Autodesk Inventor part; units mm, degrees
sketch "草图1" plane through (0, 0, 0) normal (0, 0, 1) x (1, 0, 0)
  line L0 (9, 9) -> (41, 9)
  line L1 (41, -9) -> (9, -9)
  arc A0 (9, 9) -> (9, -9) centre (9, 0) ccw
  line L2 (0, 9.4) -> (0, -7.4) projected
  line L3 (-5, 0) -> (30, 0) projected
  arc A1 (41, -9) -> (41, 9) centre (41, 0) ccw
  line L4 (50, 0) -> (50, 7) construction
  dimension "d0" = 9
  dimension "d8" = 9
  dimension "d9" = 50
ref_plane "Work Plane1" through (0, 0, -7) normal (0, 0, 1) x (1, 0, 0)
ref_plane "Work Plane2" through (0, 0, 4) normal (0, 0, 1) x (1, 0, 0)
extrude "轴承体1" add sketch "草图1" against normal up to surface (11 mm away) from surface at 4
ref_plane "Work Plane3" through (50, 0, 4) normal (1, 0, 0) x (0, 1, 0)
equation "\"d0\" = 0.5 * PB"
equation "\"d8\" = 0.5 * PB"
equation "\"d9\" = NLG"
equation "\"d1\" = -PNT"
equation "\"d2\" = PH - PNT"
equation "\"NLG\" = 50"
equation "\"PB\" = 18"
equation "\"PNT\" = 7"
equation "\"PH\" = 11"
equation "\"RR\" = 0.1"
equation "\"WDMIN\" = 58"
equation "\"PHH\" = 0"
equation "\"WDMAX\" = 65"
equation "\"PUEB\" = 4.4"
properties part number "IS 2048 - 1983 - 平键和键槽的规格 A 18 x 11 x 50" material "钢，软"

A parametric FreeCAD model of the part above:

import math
import FreeCAD as App
import Part
import Sketcher

doc = App.newDocument("Part")
body = doc.addObject("PartDesign::Body", "Body")

# Sketch on XY plane
sketch1 = body.newObject("Sketcher::SketchObject", "Sketch")
sketch1.AttachmentSupport = (doc.getObject("XY_Plane"), [""])
sketch1.MapMode = "FlatFace"
sketch1.AttachmentOffset = App.Placement(App.Vector(0, 0, 4), App.Rotation())
sketch1.addGeometry([
    Part.LineSegment(App.Vector(41, 9, 0), App.Vector(9, 9, 0)),
    Part.ArcOfCircle(Part.Circle(App.Vector(9, 0, 0), App.Vector(0, 0, 1), 9), math.radians(90), math.radians(270)),
    Part.LineSegment(App.Vector(9, -9, 0), App.Vector(41, -9, 0)),
    Part.ArcOfCircle(Part.Circle(App.Vector(41, 0, 0), App.Vector(0, 0, 1), 9), math.radians(-90), math.radians(90)),
], False)
sketch1.addConstraint([
    Sketcher.Constraint("Tangent", 0, 2, 1, 1),
    Sketcher.Constraint("Tangent", 1, 2, 2, 1),
    Sketcher.Constraint("Tangent", 2, 2, 3, 1),
    Sketcher.Constraint("Tangent", 3, 2, 0, 1),
    Sketcher.Constraint("Horizontal", 0),
    Sketcher.Constraint("Horizontal", 2),
    Sketcher.Constraint("PointOnObject", 1, 3, -1),
    Sketcher.Constraint("Radius", 1, 9.0),
    Sketcher.Constraint("DistanceX", -1, 1, 1, 3, 9.0),
    Sketcher.Constraint("DistanceX", 0, 2, 0, 1, 32.0),
])
pad1 = body.newObject("PartDesign::Pad", "Pad")
pad1.Profile = sketch1
pad1.Length = 11
pad1.Reversed = True

doc.recompute()
